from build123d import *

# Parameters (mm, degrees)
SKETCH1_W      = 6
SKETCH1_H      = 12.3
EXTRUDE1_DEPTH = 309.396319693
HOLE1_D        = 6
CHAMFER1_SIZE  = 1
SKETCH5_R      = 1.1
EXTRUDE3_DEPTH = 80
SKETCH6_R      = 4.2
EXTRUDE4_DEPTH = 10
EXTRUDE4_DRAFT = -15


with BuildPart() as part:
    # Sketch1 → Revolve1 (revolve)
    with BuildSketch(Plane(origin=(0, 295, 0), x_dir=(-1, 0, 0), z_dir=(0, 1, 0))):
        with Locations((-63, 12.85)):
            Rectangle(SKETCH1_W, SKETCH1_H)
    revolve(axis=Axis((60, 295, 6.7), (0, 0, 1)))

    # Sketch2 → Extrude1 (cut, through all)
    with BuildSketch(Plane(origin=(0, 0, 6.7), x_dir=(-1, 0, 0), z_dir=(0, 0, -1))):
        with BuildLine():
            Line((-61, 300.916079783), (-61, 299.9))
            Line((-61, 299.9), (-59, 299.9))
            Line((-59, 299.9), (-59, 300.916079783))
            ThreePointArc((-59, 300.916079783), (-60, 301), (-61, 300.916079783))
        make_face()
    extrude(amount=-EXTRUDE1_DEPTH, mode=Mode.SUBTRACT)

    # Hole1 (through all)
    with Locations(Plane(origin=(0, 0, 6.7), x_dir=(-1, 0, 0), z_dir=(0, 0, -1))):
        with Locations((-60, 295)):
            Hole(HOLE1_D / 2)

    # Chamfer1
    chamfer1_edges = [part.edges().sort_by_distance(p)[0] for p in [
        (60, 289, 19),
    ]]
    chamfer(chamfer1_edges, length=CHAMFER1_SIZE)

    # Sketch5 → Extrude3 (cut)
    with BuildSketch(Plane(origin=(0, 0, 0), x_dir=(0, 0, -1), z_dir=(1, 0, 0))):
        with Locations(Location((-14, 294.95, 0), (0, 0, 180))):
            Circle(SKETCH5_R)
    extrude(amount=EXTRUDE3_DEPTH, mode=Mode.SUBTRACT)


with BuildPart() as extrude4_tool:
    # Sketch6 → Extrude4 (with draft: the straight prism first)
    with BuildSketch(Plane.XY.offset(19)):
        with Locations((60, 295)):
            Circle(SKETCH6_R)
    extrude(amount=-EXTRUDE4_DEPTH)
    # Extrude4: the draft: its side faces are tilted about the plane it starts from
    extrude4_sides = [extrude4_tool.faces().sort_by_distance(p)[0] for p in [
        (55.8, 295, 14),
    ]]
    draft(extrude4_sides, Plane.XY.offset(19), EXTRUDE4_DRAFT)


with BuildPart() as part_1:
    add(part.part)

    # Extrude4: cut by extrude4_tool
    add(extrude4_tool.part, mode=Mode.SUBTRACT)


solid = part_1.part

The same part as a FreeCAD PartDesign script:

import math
import FreeCAD as App
import Part
import Sketcher

V = App.Vector


def edges_at(feature, points):
    """Names of the edges that pass closest to the given points."""
    edges = feature.Shape.Edges
    near = lambda p: min(range(len(edges)), key=lambda i: edges[i].distToShape(Part.Vertex(*p))[0])
    return sorted({f"Edge{near(p) + 1}" for p in points})


def faces_at(feature, points):
    """Names of the faces that lie closest to the given points."""
    faces = feature.Shape.Faces
    near = lambda p: min(range(len(faces)), key=lambda i: faces[i].distToShape(Part.Vertex(*p))[0])
    return sorted({f"Face{near(p) + 1}" for p in points})

doc = App.newDocument("Part")
body = doc.addObject("PartDesign::Body", "Body")

# Sketch on XZ plane
sketch1 = body.newObject("Sketcher::SketchObject", "Sketch")
sketch1.AttachmentSupport = (doc.getObject("XZ_Plane"), [""])
sketch1.MapMode = "FlatFace"
sketch1.AttachmentOffset = App.Placement(V(0, 0, -295), App.Rotation())
sketch1.addGeometry([
    Part.LineSegment(V(66, 19, 0), V(66, 7, 0)),
    Part.LineSegment(V(66, 7, 0), V(60, 7, 0)),
    Part.LineSegment(V(60, 7, 0), V(60, 19, 0)),
    Part.LineSegment(V(60, 19, 0), V(66, 19, 0)),
], False)
sketch1.addGeometry(Part.LineSegment(V(60, 7, 0), V(60, 19, 0)), True)  # axis
sketch1.addConstraint([
    Sketcher.Constraint("Coincident", 0, 2, 1, 1),
    Sketcher.Constraint("Coincident", 1, 2, 2, 1),
    Sketcher.Constraint("Coincident", 2, 2, 3, 1),
    Sketcher.Constraint("Coincident", 3, 2, 0, 1),
    Sketcher.Constraint("Vertical", 0),
    Sketcher.Constraint("Horizontal", 1),
    Sketcher.Constraint("Vertical", 2),
    Sketcher.Constraint("Horizontal", 3),
    Sketcher.Constraint("Vertical", 4),
    Sketcher.Constraint("Coincident", 4, 1, 1, 2),
    Sketcher.Constraint("Horizontal", 3, 2, 4, 2),
    Sketcher.Constraint("DistanceX", 1, 2, 1, 1, 6.0),
    Sketcher.Constraint("DistanceY", 0, 2, 0, 1, 12.3),
    Sketcher.Constraint("DistanceX", -1, 1, 0, 2, 66.0),
    Sketcher.Constraint("DistanceY", -1, 1, 2, 2, 19.0),
])
revolution = body.newObject("PartDesign::Revolution", "Revolution")
revolution.Profile = sketch1
revolution.ReferenceAxis = (sketch1, ["Axis0"])
revolution.Angle = 360

# Sketch on XY plane
sketch2 = body.newObject("Sketcher::SketchObject", "Sketch001")
sketch2.AttachmentSupport = (doc.getObject("XY_Plane"), [""])
sketch2.MapMode = "FlatFace"
sketch2.AttachmentOffset = App.Placement(V(0, 0, 6.7), App.Rotation())
sketch2.addGeometry([
    Part.LineSegment(V(61, 300.9, 0), V(61, 299.9, 0)),
    Part.LineSegment(V(61, 299.9, 0), V(59, 299.9, 0)),
    Part.LineSegment(V(59, 299.9, 0), V(59, 300.9, 0)),
    Part.ArcOfCircle(Part.Circle(V(60, 295, 0), V(0, 0, 1), 6), math.radians(80.41), math.radians(99.59)),
], False)
sketch2.addConstraint([
    Sketcher.Constraint("Coincident", 0, 2, 1, 1),
    Sketcher.Constraint("Coincident", 1, 2, 2, 1),
    Sketcher.Constraint("Coincident", 2, 2, 3, 2),
    Sketcher.Constraint("Coincident", 3, 1, 0, 1),
    Sketcher.Constraint("Vertical", 0),
    Sketcher.Constraint("Horizontal", 1),
    Sketcher.Constraint("Vertical", 2),
    Sketcher.Constraint("Horizontal", 2, 2, 3, 1),
    Sketcher.Constraint("Radius", 3, 6.0),
    Sketcher.Constraint("DistanceX", 1, 2, 1, 1, 2.0),
    Sketcher.Constraint("DistanceX", -1, 1, 3, 3, 60.0),
    Sketcher.Constraint("DistanceY", -1, 1, 3, 3, 295.0),
    Sketcher.Constraint("DistanceY", -1, 1, 0, 2, 299.9),
])
pocket1 = body.newObject("PartDesign::Pocket", "Pocket")
pocket1.Profile = sketch2
pocket1.Type = "ThroughAll"
pocket1.Reversed = True

# Sketch on XY plane
sketch3 = body.newObject("Sketcher::SketchObject", "Sketch002")
sketch3.AttachmentSupport = (doc.getObject("XY_Plane"), [""])
sketch3.MapMode = "FlatFace"
sketch3.AttachmentOffset = App.Placement(V(0, 0, 6.7), App.Rotation())
sketch3.addGeometry(Part.Circle(V(60, 295, 0), V(0, 0, 1), 3), False)
sketch3.addConstraint([
    Sketcher.Constraint("Diameter", 0, 6.0),
    Sketcher.Constraint("DistanceX", -1, 1, 0, 3, 60.0),
    Sketcher.Constraint("DistanceY", -1, 1, 0, 3, 295.0),
])
doc.recompute()
hole = body.newObject("PartDesign::Hole", "Hole")
hole.Profile = sketch3
hole.ThreadType = "None"
hole.Diameter = 6
hole.DepthType = "ThroughAll"
hole.Reversed = True
doc.recompute()

chamfer = body.newObject("PartDesign::Chamfer", "Chamfer")
chamfer.Base = (hole, edges_at(hole, [(60, 289, 19)]))
chamfer.Size = 1

# Sketch on YZ plane
sketch4 = body.newObject("Sketcher::SketchObject", "Sketch003")
sketch4.AttachmentSupport = (doc.getObject("YZ_Plane"), [""])
sketch4.MapMode = "FlatFace"
sketch4.addGeometry(Part.Circle(V(294.9, 14, 0), V(0, 0, 1), 1.1), False)
sketch4.addConstraint([
    Sketcher.Constraint("Diameter", 0, 2.2),
    Sketcher.Constraint("DistanceY", -1, 1, 0, 3, 14.0),
    Sketcher.Constraint("DistanceX", -1, 1, 0, 3, 294.95),
])
pocket2 = body.newObject("PartDesign::Pocket", "Pocket001")
pocket2.Profile = sketch4
pocket2.Length = 80
pocket2.Reversed = True
body2 = doc.addObject("PartDesign::Body", "Body001")

# Sketch on XY plane
sketch5 = body2.newObject("Sketcher::SketchObject", "Sketch004")
sketch5.AttachmentSupport = (doc.getObject("XY_Plane001"), [""])
sketch5.MapMode = "FlatFace"
sketch5.AttachmentOffset = App.Placement(V(0, 0, 19), App.Rotation())
sketch5.addGeometry(Part.Circle(V(60, 295, 0), V(0, 0, 1), 4.2), False)
sketch5.addConstraint([
    Sketcher.Constraint("Diameter", 0, 8.4),
    Sketcher.Constraint("DistanceX", -1, 1, 0, 3, 60.0),
    Sketcher.Constraint("DistanceY", -1, 1, 0, 3, 295.0),
])
pad1 = body2.newObject("PartDesign::Pad", "Pad")
pad1.Profile = sketch5
pad1.Length = 10
pad1.Reversed = True
doc.recompute()

datumplane = body2.newObject("PartDesign::Plane", "DatumPlane")
datumplane.AttachmentSupport = (doc.getObject("XY_Plane001"), [""])
datumplane.MapMode = "FlatFace"
datumplane.AttachmentOffset = App.Placement(V(0, 0, 19), App.Rotation())
draft = body2.newObject("PartDesign::Draft", "Draft")
draft.Base = (pad1, faces_at(pad1, [(55.8, 295, 14)]))
draft.NeutralPlane = (datumplane, [""])
draft.Angle = 15
draft.Reversed = True
doc.recompute()

boolean = body.newObject("PartDesign::Boolean", "Boolean")
boolean.Type = "Cut"
boolean.addObjects([body2])

doc.recompute()
